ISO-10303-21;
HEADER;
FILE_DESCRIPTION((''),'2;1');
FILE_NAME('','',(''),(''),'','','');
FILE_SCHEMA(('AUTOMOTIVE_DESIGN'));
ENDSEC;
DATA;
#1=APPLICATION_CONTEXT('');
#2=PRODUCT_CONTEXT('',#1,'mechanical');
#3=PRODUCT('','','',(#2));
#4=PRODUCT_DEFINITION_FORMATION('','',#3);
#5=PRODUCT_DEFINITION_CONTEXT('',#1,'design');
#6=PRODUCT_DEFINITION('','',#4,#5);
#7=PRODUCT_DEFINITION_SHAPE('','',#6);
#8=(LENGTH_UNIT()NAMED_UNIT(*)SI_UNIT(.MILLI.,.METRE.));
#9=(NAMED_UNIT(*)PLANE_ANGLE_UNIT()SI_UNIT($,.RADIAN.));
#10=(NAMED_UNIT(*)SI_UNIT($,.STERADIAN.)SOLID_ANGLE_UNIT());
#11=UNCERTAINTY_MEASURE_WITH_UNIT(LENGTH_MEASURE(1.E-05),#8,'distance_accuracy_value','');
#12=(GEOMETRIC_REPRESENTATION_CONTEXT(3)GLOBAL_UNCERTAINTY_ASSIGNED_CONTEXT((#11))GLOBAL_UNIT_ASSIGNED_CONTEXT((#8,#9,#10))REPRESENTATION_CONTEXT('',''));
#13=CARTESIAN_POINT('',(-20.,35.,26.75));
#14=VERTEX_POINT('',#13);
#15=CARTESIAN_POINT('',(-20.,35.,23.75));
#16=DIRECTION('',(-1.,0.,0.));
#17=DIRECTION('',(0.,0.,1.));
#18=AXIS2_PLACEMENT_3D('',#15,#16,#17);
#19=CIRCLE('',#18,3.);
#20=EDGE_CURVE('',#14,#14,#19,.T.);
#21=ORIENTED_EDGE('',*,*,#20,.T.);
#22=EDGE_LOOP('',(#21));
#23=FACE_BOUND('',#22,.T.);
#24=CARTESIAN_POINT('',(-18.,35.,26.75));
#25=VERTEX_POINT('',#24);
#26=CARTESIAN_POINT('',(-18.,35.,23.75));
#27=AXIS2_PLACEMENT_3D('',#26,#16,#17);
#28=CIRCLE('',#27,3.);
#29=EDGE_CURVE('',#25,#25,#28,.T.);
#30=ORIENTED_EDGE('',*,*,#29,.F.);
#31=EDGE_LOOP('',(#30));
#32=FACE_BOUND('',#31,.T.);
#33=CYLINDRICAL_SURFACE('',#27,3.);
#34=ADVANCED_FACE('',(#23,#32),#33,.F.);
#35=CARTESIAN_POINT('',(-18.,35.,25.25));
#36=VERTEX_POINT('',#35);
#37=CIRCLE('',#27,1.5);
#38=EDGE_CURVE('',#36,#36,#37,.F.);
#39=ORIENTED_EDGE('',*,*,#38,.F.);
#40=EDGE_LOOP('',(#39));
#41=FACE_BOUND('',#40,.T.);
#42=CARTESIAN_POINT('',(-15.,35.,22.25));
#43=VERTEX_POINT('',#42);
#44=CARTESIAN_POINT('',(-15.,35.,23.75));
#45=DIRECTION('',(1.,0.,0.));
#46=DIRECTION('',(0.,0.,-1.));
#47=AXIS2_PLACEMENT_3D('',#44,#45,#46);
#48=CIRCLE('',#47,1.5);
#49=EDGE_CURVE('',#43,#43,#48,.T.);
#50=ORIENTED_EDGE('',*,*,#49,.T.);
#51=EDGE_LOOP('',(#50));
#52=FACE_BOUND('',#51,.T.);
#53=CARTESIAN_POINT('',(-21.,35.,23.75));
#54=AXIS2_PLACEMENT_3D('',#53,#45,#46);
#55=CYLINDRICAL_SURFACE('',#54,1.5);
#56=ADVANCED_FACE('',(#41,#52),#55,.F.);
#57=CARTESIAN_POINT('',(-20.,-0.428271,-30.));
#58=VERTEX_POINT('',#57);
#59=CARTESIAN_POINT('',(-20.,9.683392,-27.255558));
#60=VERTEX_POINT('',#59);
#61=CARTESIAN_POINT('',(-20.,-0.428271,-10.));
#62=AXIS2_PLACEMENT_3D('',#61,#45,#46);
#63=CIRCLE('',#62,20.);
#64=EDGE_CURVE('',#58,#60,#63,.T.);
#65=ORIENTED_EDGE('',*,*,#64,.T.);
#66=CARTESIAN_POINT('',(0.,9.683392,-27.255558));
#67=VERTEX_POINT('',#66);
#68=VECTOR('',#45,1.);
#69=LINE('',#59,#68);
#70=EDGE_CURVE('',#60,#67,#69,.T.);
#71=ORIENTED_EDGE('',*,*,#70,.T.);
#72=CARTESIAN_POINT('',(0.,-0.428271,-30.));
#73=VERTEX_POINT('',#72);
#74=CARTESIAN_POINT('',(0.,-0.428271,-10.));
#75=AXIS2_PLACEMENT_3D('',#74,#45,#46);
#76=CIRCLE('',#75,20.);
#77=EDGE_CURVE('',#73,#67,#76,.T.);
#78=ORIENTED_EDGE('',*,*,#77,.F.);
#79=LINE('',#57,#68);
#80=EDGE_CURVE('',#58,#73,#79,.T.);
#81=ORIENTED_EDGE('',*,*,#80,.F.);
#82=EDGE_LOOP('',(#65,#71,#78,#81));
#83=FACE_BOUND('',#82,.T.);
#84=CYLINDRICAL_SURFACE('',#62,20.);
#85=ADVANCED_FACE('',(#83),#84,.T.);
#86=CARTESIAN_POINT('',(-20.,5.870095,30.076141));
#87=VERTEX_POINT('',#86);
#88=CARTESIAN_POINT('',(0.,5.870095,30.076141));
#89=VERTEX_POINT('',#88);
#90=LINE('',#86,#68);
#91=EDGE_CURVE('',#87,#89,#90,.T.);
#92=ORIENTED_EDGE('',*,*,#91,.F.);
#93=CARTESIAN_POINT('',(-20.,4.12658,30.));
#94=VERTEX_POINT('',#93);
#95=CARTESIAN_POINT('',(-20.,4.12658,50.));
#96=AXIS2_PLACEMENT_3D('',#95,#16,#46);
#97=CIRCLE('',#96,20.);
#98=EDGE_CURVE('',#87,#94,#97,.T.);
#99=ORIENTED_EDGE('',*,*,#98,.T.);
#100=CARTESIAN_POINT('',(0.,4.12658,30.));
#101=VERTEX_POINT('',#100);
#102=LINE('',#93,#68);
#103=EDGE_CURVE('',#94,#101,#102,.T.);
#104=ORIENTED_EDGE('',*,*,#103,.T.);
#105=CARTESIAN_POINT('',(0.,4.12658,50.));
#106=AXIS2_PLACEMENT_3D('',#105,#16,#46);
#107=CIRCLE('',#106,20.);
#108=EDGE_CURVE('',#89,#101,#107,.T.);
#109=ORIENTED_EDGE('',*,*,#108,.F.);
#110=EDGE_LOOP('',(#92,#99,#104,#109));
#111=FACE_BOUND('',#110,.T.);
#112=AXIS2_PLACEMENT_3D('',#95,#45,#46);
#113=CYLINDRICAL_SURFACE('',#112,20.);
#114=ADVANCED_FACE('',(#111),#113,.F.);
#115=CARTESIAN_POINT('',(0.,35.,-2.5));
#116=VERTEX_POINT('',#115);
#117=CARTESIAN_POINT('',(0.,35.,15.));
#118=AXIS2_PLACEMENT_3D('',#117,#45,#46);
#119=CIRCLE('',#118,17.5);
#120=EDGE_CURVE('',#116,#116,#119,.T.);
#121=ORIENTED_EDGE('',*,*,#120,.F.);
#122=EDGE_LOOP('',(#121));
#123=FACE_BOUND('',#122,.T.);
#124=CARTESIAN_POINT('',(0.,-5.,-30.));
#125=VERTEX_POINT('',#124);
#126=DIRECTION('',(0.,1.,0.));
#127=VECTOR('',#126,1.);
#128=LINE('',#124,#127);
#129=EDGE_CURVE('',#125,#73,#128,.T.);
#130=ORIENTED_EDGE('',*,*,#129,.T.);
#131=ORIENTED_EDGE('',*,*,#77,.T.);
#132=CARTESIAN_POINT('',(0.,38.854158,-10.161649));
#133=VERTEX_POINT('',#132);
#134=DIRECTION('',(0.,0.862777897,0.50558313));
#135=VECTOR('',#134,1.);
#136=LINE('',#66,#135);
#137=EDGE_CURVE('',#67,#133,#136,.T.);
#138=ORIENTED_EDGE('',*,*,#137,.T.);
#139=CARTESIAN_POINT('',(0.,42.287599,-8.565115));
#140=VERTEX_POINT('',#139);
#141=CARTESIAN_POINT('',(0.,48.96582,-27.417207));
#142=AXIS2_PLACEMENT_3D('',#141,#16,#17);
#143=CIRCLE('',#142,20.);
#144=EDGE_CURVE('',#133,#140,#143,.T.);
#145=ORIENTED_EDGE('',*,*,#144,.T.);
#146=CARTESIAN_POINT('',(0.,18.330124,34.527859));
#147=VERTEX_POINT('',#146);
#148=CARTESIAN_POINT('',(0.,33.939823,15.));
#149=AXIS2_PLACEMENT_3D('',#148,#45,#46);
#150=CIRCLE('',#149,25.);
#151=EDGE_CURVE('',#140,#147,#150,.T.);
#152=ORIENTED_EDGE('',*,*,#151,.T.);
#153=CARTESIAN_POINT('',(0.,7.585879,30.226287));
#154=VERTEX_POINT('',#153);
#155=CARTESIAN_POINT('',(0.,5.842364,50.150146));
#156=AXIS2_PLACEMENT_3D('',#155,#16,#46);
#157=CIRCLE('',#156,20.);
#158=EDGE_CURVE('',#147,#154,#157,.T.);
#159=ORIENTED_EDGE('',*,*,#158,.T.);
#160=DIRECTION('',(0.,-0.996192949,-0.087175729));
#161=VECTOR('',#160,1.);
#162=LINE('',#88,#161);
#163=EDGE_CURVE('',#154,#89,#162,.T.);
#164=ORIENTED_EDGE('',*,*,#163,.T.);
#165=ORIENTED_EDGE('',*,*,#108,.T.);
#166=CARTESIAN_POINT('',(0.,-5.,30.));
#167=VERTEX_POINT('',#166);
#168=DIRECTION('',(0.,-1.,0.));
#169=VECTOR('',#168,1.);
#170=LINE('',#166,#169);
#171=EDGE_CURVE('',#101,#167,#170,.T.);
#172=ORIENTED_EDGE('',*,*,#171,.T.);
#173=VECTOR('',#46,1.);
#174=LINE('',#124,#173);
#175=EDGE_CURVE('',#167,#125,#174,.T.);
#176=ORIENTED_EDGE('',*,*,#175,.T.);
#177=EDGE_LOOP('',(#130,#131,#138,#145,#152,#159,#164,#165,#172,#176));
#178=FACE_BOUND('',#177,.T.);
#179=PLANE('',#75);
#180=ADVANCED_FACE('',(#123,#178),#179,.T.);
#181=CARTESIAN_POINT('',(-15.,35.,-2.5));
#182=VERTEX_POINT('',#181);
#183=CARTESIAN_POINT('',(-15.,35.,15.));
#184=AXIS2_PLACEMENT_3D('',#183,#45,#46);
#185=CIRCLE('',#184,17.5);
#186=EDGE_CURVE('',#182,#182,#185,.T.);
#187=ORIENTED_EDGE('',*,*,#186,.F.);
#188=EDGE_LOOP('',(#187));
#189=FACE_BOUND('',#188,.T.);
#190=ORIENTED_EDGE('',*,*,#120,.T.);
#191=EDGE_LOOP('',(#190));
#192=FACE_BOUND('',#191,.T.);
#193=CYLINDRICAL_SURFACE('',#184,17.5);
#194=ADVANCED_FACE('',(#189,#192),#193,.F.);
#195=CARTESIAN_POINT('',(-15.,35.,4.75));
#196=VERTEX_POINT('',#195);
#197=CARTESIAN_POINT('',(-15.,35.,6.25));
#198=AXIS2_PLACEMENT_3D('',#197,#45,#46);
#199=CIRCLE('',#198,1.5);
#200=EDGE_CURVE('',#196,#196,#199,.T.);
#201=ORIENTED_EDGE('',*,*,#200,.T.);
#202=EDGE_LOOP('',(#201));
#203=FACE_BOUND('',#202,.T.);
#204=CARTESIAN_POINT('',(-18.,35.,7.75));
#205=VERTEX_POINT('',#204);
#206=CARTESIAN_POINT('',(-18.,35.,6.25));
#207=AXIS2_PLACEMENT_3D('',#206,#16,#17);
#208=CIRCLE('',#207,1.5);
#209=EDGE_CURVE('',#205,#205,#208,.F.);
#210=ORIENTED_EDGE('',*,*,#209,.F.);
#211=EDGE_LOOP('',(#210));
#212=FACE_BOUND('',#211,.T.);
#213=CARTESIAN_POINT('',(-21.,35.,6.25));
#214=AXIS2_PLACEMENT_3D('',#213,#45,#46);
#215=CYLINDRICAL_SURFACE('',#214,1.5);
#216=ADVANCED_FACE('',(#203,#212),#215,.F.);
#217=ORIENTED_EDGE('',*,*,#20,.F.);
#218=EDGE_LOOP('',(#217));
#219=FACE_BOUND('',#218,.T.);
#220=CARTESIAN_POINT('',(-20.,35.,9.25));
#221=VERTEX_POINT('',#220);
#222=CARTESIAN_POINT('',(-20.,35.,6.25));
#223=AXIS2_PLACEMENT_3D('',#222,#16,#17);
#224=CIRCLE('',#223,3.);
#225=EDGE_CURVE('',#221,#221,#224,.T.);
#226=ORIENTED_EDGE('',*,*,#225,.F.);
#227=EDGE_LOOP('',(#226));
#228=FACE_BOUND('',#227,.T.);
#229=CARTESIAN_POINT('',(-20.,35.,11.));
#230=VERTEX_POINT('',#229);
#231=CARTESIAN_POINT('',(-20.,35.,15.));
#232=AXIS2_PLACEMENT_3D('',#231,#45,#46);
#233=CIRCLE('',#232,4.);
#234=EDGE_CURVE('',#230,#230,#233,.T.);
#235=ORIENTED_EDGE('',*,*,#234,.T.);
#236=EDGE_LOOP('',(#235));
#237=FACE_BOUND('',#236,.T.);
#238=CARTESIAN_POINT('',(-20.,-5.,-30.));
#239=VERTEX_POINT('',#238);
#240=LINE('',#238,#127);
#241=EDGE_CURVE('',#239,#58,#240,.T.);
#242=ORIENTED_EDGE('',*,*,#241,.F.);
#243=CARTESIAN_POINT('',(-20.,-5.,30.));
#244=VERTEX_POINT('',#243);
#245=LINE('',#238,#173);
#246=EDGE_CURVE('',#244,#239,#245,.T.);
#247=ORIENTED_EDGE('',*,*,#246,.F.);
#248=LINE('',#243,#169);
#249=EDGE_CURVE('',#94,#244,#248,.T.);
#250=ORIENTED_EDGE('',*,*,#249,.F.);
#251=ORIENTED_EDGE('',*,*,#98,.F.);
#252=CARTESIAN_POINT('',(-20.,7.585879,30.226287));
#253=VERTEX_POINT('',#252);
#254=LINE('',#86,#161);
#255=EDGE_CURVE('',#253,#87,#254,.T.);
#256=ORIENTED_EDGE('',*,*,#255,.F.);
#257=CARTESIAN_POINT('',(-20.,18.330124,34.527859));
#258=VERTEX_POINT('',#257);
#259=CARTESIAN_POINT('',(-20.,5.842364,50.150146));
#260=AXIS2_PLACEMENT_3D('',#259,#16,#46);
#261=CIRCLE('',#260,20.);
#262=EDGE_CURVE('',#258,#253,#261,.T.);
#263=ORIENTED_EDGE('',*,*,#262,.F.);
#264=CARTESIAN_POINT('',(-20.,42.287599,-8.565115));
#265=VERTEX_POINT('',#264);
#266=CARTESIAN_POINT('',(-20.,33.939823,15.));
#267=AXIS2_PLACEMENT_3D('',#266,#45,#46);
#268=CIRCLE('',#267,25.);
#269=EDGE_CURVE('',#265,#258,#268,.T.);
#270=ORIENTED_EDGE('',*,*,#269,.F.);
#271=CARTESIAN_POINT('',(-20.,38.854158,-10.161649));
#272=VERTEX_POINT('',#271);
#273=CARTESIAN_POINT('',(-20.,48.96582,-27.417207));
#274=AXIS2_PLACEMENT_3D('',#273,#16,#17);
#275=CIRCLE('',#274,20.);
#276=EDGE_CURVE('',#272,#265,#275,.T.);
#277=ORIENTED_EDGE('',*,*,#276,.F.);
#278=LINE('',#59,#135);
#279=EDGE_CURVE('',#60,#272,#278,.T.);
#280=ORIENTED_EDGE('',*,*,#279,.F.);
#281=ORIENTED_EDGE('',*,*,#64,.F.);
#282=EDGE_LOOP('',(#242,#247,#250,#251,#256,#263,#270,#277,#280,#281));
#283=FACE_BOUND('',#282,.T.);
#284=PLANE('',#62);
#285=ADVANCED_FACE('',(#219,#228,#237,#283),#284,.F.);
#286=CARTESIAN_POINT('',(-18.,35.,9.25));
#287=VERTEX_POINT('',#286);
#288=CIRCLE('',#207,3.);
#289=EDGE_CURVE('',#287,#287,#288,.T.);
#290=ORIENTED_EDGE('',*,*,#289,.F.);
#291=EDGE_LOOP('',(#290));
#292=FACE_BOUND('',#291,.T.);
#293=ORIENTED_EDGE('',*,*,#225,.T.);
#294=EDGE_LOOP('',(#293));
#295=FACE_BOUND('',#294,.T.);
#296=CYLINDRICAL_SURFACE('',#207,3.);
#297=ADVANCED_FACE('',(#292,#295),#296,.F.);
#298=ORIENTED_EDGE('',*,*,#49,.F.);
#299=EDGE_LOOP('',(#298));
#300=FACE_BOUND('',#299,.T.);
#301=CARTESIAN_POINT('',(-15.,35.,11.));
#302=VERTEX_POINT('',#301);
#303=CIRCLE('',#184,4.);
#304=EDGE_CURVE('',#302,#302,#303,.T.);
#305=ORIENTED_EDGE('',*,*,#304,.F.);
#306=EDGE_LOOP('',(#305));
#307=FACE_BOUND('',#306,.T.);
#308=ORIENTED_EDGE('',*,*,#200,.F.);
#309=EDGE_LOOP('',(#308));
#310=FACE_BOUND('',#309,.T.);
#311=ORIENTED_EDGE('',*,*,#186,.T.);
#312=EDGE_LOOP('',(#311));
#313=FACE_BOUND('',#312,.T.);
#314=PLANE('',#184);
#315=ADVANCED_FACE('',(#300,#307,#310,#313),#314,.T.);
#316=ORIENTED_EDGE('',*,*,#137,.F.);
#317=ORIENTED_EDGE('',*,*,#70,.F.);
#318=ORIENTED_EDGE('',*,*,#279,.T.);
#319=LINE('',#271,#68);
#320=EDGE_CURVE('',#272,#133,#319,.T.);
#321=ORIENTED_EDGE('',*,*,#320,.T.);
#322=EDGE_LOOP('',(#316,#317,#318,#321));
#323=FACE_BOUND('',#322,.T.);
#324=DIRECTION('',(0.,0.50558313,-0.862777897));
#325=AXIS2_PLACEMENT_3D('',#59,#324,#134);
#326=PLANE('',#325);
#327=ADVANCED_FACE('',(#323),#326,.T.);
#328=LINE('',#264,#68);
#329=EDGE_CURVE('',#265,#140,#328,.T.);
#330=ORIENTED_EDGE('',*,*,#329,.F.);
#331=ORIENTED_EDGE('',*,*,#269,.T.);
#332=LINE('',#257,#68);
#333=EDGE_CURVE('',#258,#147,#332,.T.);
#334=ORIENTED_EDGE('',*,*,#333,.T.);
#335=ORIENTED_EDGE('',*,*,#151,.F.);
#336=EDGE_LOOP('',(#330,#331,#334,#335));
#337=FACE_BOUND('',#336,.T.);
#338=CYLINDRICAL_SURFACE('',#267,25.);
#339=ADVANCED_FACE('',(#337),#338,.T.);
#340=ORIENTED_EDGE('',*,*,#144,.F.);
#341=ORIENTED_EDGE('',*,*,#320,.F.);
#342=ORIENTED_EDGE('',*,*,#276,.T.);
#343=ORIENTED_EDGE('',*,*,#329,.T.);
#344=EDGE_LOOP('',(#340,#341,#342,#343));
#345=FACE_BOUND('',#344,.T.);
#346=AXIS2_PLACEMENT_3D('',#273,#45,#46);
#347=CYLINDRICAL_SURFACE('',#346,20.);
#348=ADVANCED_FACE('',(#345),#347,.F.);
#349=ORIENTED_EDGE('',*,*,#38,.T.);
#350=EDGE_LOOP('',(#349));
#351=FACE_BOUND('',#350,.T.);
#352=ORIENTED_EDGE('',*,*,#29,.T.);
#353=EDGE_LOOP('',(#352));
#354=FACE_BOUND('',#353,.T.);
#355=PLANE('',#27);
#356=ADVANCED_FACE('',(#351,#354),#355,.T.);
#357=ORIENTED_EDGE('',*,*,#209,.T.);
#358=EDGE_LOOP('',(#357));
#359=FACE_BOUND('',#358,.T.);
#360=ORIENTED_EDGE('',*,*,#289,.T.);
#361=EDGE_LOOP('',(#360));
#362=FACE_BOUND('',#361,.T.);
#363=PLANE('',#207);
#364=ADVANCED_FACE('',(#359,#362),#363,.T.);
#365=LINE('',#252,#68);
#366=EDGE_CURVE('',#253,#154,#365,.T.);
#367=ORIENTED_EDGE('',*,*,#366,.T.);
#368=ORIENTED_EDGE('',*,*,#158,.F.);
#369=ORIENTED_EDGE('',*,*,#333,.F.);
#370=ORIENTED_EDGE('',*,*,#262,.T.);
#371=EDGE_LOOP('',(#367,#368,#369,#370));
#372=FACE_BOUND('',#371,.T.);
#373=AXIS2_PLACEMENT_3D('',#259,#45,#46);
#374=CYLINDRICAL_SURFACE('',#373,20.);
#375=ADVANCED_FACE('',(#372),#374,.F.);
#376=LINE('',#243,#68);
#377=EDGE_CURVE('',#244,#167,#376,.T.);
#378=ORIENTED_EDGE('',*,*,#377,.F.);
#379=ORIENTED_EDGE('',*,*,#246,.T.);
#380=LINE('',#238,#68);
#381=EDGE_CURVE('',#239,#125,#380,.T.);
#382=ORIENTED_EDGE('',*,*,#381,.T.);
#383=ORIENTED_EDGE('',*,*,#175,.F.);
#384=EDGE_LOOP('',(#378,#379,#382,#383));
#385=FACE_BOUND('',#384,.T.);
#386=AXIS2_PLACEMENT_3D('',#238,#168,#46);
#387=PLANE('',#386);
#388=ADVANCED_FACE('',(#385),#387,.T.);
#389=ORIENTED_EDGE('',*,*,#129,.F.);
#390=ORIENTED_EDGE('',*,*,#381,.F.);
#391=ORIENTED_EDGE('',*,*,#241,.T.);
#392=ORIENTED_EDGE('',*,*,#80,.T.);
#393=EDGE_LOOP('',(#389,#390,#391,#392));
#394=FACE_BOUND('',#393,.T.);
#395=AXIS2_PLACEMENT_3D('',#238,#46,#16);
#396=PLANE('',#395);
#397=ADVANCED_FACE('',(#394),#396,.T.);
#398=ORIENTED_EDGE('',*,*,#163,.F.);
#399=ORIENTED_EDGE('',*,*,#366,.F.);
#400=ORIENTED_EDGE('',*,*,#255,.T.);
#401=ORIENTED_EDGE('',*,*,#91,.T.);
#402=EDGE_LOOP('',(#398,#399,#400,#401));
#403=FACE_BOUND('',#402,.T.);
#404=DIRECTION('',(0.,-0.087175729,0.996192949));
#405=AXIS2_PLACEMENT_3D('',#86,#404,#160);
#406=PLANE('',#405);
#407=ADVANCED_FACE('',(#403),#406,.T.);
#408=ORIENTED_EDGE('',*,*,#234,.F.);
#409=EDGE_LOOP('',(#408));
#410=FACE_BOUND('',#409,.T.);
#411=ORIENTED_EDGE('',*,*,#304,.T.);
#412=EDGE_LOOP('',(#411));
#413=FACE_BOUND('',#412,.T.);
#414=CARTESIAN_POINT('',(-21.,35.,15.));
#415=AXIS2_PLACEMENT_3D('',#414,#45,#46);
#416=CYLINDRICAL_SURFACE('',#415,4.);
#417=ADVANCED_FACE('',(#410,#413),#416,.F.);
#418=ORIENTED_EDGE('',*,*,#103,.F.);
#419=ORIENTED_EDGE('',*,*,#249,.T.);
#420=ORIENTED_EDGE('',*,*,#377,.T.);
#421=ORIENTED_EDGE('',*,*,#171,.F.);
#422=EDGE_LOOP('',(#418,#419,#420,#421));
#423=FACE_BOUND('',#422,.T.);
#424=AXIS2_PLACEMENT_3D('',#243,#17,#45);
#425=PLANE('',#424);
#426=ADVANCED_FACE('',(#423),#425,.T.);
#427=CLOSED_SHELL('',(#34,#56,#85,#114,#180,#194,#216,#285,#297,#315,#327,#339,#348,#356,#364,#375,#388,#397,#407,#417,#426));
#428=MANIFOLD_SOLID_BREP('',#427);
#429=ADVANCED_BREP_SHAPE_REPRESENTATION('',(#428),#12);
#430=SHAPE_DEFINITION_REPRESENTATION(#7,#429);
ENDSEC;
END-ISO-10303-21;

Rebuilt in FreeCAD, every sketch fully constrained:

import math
import FreeCAD as App
import Part
import Sketcher

V = App.Vector
Q = App.Units.Quantity

doc = App.newDocument("Part")
body = doc.addObject("PartDesign::Body", "Body")

# Sketch on YZ plane
sketch1 = doc.addObject("Sketcher::SketchObject", "Sketch")
body.addObject(sketch1)
sketch1.AttachmentSupport = (doc.YZ_Plane, [""])
sketch1.MapMode = "FlatFace"
sketch1.addGeometry([
    Part.LineSegment(V(9.7, -27.3, 0), V(38.9, -10.2, 0)),  # 0
    Part.ArcOfCircle(Part.Circle(V(49, -27.4, 0), V(0, 0, 1), 20), math.radians(109.51), math.radians(120.37)),  # 1
    Part.ArcOfCircle(Part.Circle(V(33.9, 15, 0), V(0, 0, 1), 25), math.radians(-70), math.radians(129)),  # 2
    Part.ArcOfCircle(Part.Circle(V(5.8, 50.2, 0), V(0, 0, 1), 20), math.radians(-85), math.radians(-51)),  # 3
    Part.LineSegment(V(7.6, 30.2, 0), V(5.9, 30.1, 0)),  # 4
    Part.ArcOfCircle(Part.Circle(V(4.1, 50, 0), V(0, 0, 1), 20), math.radians(-90), math.radians(-85)),  # 5
    Part.LineSegment(V(4.1, 30, 0), V(-5, 30, 0)),  # 6
    Part.LineSegment(V(-5, 30, 0), V(-5, -30, 0)),  # 7
    Part.LineSegment(V(-5, -30, 0), V(-0.4, -30, 0)),  # 8
    Part.ArcOfCircle(Part.Circle(V(-0.4, -10, 0), V(0, 0, 1), 20), math.radians(-90), math.radians(-60)),  # 9
], False)
sketch1.addConstraint([
    Sketcher.Constraint("Tangent", 0, 2, 1, 2),
    Sketcher.Constraint("Tangent", 1, 1, 2, 1),
    Sketcher.Constraint("Tangent", 2, 2, 3, 2),
    Sketcher.Constraint("Tangent", 3, 1, 4, 1),
    Sketcher.Constraint("Tangent", 4, 2, 5, 2),
    Sketcher.Constraint("Tangent", 5, 1, 6, 1),
    Sketcher.Constraint("Coincident", 6, 2, 7, 1),
    Sketcher.Constraint("Coincident", 7, 2, 8, 1),
    Sketcher.Constraint("Tangent", 8, 2, 9, 1),
    Sketcher.Constraint("Tangent", 9, 2, 0, 1),
    Sketcher.Constraint("Horizontal", 6),
    Sketcher.Constraint("Vertical", 7),
    Sketcher.Constraint("Horizontal", 8),
    Sketcher.Constraint("Equal", 1, 3),
    Sketcher.Constraint("Equal", 3, 5),
    Sketcher.Constraint("Equal", 5, 9),
    Sketcher.Constraint("Radius", 1, Q("20 mm")),
    Sketcher.Constraint("Radius", 2, Q("25 mm")),
    Sketcher.Constraint("DistanceY", 7, 2, 7, 1, Q("60 mm")),
    Sketcher.Constraint("DistanceY", -1, 1, 2, 3, Q("15 mm")),
    Sketcher.Constraint("DistanceY", -1, 1, 5, 3, Q("50 mm")),
    Sketcher.Constraint("DistanceX", 6, 2, -1, 1, Q("5 mm")),
    Sketcher.Constraint("DistanceX", 6, 2, 6, 1, Q("9.12658 mm")),
    Sketcher.Constraint("DistanceX", 8, 1, 8, 2, Q("4.571729 mm")),
    Sketcher.Constraint("DistanceX", -1, 1, 1, 1, Q("42.287599 mm")),
    Sketcher.Constraint("DistanceX", 2, 2, 2, 3, Q("15.6097 mm")),
    Sketcher.Constraint("Distance", 4, Q("1.722341 mm")),
])
pad1 = doc.addObject("PartDesign::Pad", "Pad")
body.addObject(pad1)
pad1.Profile = sketch1
pad1.Length = 20
pad1.Reversed = True

# Sketch on YZ plane
sketch2 = doc.addObject("Sketcher::SketchObject", "Sketch001")
body.addObject(sketch2)
sketch2.AttachmentSupport = (doc.YZ_Plane, [""])
sketch2.MapMode = "FlatFace"
sketch2.addGeometry(Part.Circle(V(35, 15, 0), V(0, 0, 1), 18), False)
sketch2.addConstraint([
    Sketcher.Constraint("Diameter", 0, Q("35 mm")),
    Sketcher.Constraint("DistanceX", -1, 1, 0, 3, Q("35 mm")),
    Sketcher.Constraint("DistanceY", -1, 1, 0, 3, Q("15 mm")),
])
pocket1 = doc.addObject("PartDesign::Pocket", "Pocket")
body.addObject(pocket1)
pocket1.Profile = sketch2
pocket1.Length = 15

# Sketch on YZ plane
sketch3 = doc.addObject("Sketcher::SketchObject", "Sketch002")
body.addObject(sketch3)
sketch3.AttachmentSupport = (doc.YZ_Plane, [""])
sketch3.MapMode = "FlatFace"
sketch3.AttachmentOffset = App.Placement(V(0, 0, -15), App.Rotation())
sketch3.addGeometry([
    Part.Circle(V(35, 15, 0), V(0, 0, 1), 4),
    Part.Circle(V(35, 6.2, 0), V(0, 0, 1), 1.5),
    Part.Circle(V(35, 23.8, 0), V(0, 0, 1), 1.5),
], False)
sketch3.addConstraint([
    Sketcher.Constraint("Equal", 1, 2),
    Sketcher.Constraint("Vertical", 0, 3, 1, 3),
    Sketcher.Constraint("Vertical", 1, 3, 2, 3),
    Sketcher.Constraint("Diameter", 0, Q("8 mm")),
    Sketcher.Constraint("Diameter", 1, Q("3 mm")),
    Sketcher.Constraint("DistanceX", -1, 1, 0, 3, Q("35 mm")),
    Sketcher.Constraint("DistanceY", -1, 1, 0, 3, Q("15 mm")),
    Sketcher.Constraint("DistanceY", 1, 3, 2, 3, Q("17.5 mm")),
    Sketcher.Constraint("DistanceY", -1, 1, 1, 3, Q("6.25 mm")),
])
pocket2 = doc.addObject("PartDesign::Pocket", "Pocket001")
body.addObject(pocket2)
pocket2.Profile = sketch3
pocket2.Length = 6

# Sketch on YZ plane
sketch4 = doc.addObject("Sketcher::SketchObject", "Sketch003")
body.addObject(sketch4)
sketch4.AttachmentSupport = (doc.YZ_Plane, [""])
sketch4.MapMode = "FlatFace"
sketch4.AttachmentOffset = App.Placement(V(0, 0, -20), App.Rotation())
sketch4.addGeometry([
    Part.Circle(V(35, 6.2, 0), V(0, 0, 1), 3),
    Part.Circle(V(35, 23.8, 0), V(0, 0, 1), 3),
], False)
sketch4.addConstraint([
    Sketcher.Constraint("Equal", 0, 1),
    Sketcher.Constraint("Vertical", 0, 3, 1, 3),
    Sketcher.Constraint("Diameter", 0, Q("6 mm")),
    Sketcher.Constraint("DistanceX", -1, 1, 0, 3, Q("35 mm")),
    Sketcher.Constraint("DistanceY", 0, 3, 1, 3, Q("17.5 mm")),
    Sketcher.Constraint("DistanceY", -1, 1, 0, 3, Q("6.25 mm")),
])
pocket3 = doc.addObject("PartDesign::Pocket", "Pocket002")
body.addObject(pocket3)
pocket3.Profile = sketch4
pocket3.Length = 2
pocket3.Reversed = True

doc.recompute()
